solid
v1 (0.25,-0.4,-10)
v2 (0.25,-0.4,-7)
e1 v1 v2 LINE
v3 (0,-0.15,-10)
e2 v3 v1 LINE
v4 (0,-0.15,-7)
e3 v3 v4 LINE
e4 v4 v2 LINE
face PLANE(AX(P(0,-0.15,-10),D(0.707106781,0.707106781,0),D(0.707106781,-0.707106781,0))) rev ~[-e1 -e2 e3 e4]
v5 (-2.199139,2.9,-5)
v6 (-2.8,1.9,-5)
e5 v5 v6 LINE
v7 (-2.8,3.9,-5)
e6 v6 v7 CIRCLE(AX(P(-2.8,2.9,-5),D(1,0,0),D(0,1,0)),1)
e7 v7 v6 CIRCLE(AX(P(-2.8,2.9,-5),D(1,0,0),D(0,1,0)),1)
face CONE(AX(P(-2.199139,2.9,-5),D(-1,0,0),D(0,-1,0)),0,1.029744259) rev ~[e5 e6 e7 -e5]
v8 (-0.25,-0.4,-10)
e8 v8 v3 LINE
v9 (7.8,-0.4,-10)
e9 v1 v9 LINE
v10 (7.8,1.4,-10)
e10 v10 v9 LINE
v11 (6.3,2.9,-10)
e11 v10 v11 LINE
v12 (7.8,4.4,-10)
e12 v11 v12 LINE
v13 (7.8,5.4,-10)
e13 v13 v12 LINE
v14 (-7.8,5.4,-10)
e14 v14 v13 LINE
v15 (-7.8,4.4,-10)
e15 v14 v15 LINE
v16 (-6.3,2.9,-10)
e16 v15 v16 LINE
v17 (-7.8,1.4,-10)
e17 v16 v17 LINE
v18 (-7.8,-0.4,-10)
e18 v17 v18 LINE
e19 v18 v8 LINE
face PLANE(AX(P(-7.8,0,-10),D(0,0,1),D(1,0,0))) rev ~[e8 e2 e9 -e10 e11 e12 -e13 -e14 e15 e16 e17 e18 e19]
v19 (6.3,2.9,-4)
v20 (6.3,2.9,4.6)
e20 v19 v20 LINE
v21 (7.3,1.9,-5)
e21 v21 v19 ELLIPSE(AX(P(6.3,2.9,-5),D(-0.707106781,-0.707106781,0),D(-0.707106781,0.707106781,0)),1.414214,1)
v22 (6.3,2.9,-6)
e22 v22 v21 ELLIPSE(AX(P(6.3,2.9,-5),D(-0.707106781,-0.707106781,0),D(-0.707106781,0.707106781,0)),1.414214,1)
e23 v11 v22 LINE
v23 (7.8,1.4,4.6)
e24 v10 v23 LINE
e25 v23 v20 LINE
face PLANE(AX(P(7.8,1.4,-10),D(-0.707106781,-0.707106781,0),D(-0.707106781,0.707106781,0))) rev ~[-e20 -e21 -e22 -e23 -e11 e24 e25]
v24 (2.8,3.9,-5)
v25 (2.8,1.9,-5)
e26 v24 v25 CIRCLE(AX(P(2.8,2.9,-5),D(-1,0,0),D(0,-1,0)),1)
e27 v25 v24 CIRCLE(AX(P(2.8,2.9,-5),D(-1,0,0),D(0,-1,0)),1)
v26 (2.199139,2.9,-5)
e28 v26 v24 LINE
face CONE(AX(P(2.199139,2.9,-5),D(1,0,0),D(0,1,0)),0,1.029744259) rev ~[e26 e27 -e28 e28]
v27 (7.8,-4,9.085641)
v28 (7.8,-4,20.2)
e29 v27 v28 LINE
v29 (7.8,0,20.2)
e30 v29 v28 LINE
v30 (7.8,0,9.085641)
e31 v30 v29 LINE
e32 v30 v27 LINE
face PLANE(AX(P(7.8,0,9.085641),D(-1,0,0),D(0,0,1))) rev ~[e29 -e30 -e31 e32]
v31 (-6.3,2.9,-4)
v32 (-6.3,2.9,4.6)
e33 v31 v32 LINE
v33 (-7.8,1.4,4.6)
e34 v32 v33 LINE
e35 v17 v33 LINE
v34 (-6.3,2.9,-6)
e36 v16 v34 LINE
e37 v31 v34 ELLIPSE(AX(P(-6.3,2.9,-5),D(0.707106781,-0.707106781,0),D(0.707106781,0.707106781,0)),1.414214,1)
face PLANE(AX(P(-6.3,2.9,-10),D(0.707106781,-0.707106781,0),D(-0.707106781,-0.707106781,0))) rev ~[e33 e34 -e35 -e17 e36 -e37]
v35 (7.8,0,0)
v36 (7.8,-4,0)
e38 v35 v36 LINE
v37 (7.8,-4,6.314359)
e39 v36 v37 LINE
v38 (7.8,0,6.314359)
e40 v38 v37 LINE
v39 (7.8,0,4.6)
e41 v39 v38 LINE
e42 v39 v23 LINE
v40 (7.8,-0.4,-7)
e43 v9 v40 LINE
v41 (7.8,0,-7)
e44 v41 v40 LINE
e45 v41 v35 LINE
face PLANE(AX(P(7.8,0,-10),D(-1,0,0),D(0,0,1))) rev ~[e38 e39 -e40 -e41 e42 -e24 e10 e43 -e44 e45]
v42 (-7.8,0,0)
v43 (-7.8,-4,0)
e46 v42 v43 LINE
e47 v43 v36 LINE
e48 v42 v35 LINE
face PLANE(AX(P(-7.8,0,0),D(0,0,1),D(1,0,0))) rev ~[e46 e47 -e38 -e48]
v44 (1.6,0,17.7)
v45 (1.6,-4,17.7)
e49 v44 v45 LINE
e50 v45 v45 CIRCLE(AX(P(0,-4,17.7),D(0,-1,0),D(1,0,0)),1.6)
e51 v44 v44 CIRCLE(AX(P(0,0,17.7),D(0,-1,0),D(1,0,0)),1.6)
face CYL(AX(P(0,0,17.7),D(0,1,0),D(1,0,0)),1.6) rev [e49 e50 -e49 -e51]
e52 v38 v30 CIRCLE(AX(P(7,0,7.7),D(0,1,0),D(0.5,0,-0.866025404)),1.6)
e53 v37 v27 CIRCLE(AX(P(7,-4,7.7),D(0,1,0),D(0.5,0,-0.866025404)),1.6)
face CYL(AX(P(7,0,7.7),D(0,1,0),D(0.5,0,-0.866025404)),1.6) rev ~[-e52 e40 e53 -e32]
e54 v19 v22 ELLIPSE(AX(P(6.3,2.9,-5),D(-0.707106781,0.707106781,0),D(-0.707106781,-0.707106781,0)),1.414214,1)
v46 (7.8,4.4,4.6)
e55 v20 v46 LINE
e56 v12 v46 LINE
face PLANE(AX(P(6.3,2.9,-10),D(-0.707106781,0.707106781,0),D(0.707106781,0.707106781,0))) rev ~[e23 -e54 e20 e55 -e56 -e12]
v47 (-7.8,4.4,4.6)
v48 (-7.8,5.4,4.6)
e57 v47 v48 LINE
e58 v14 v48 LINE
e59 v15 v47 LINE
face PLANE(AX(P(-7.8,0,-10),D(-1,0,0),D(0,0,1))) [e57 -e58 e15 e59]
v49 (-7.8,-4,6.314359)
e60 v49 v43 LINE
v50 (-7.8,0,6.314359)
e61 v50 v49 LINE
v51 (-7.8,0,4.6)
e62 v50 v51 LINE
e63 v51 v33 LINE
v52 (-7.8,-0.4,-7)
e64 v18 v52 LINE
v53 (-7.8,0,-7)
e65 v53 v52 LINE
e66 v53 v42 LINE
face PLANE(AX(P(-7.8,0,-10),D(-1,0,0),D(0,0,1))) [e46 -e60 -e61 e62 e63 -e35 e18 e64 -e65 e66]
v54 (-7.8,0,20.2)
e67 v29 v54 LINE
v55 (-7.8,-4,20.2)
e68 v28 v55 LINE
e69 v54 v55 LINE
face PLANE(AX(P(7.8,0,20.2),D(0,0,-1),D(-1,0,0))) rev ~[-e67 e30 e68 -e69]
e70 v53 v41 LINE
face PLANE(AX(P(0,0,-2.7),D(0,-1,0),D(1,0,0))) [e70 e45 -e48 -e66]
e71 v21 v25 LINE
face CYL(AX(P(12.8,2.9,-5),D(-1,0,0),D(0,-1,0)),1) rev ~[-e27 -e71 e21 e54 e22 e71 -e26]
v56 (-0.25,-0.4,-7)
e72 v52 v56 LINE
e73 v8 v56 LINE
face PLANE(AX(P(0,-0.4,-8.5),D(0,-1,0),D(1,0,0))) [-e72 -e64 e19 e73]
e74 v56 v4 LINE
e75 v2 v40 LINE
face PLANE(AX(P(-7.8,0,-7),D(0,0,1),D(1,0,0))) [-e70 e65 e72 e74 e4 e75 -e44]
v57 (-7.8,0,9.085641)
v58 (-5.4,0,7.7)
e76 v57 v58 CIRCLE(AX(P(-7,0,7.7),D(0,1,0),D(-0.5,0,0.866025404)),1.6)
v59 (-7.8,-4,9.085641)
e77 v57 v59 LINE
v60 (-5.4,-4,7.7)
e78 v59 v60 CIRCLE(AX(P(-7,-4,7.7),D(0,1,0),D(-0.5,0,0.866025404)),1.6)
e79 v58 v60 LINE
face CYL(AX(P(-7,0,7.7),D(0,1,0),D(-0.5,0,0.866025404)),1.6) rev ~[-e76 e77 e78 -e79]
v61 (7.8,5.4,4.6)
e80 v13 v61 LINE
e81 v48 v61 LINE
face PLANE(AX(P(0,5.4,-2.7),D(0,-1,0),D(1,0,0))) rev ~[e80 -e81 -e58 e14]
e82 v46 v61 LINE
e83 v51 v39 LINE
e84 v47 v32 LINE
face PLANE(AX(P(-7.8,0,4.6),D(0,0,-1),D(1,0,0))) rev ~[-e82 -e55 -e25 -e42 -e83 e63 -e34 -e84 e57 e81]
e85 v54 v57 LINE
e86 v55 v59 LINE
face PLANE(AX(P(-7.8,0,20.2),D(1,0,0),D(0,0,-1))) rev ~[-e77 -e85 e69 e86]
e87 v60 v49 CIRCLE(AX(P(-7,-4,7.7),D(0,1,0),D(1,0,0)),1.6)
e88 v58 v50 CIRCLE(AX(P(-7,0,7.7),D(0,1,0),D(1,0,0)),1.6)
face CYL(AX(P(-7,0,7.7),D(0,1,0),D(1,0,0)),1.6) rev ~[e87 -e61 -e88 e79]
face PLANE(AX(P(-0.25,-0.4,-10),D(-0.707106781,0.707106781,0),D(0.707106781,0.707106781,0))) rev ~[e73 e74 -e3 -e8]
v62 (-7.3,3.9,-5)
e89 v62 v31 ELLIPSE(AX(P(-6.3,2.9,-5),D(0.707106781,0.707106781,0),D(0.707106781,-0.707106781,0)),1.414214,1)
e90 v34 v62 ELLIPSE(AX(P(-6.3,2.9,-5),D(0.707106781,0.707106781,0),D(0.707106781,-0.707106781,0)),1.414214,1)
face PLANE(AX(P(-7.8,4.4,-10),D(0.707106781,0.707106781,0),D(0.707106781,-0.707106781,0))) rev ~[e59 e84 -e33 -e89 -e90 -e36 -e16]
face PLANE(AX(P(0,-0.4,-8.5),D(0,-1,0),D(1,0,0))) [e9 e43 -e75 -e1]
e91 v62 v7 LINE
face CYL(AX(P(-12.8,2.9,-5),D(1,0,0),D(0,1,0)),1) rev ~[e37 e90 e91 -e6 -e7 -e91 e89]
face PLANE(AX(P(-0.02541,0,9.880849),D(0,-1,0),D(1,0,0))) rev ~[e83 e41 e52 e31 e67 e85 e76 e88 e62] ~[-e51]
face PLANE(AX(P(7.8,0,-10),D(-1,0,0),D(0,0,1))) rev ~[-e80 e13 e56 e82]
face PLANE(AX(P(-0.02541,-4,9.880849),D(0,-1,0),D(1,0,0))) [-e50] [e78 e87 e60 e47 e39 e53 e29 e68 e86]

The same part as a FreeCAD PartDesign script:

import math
import FreeCAD as App
import Part
import Sketcher

V = App.Vector


def add_polygon(sketch, points):
    """Adds a closed chain of lines whose ends are joined by coincident constraints."""
    first, n = sketch.GeometryCount, len(points)
    for a, b in zip(points, points[1:] + points[:1]):
        sketch.addGeometry(Part.LineSegment(App.Vector(*a, 0), App.Vector(*b, 0)), False)
    for i in range(n):
        sketch.addConstraint(Sketcher.Constraint("Coincident", first + i, 2, first + (i + 1) % n, 1))

doc = App.newDocument("Part")
body = doc.addObject("PartDesign::Body", "Body")

sketch1 = doc.addObject("Sketcher::SketchObject", "Sketch")
body.addObject(sketch1)
sketch1.AttachmentSupport = (doc.XZ_Plane, [""])
sketch1.MapMode = "FlatFace"
sketch1.addGeometry([
    Part.LineSegment(V(-7.8, 6.314359, 0), V(-7.8, 0, 0)),
    Part.LineSegment(V(-7.8, 0, 0), V(7.8, 0, 0)),
    Part.LineSegment(V(7.8, 0, 0), V(7.8, 6.314359, 0)),
    Part.ArcOfCircle(Part.Circle(V(7, 7.7, 0), V(0, 0, 1), 1.6), math.radians(60), math.radians(300)),
    Part.LineSegment(V(7.8, 9.085641, 0), V(7.8, 20.2, 0)),
    Part.LineSegment(V(7.8, 20.2, 0), V(-7.8, 20.2, 0)),
    Part.LineSegment(V(-7.8, 20.2, 0), V(-7.8, 9.085641, 0)),
    Part.ArcOfCircle(Part.Circle(V(-7, 7.7, 0), V(0, 0, 1), 1.6), math.radians(0), math.radians(120)),
    Part.ArcOfCircle(Part.Circle(V(-7, 7.7, 0), V(0, 0, 1), 1.6), math.radians(-120), math.radians(0)),
    Part.Circle(V(0, 17.7, 0), V(0, 0, 1), 1.6),
], False)
sketch1.addConstraint([
    Sketcher.Constraint("Coincident", 0, 2, 1, 1),
    Sketcher.Constraint("Coincident", 1, 2, 2, 1),
    Sketcher.Constraint("Coincident", 2, 2, 3, 2),
    Sketcher.Constraint("Coincident", 3, 1, 4, 1),
    Sketcher.Constraint("Coincident", 4, 2, 5, 1),
    Sketcher.Constraint("Coincident", 5, 2, 6, 1),
    Sketcher.Constraint("Coincident", 6, 2, 7, 2),
    Sketcher.Constraint("Tangent", 7, 1, 8, 2),
    Sketcher.Constraint("Coincident", 8, 1, 0, 1),
    Sketcher.Constraint("Vertical", 0),
    Sketcher.Constraint("Horizontal", 1),
    Sketcher.Constraint("Vertical", 2),
    Sketcher.Constraint("Vertical", 4),
    Sketcher.Constraint("Horizontal", 5),
    Sketcher.Constraint("Vertical", 6),
    Sketcher.Constraint("Equal", 3, 7),
    Sketcher.Constraint("Equal", 7, 8),
    Sketcher.Constraint("Equal", 8, 9),
    Sketcher.Constraint("Symmetric", 0, 2, 1, 2, -1, 1),
    Sketcher.Constraint("Symmetric", 3, 3, 7, 3, -2),
    Sketcher.Constraint("PointOnObject", 9, 3, -2),
    Sketcher.Constraint("Horizontal", 3, 1, 6, 2),
    Sketcher.Constraint("Horizontal", 8, 3, 7, 1),
    Sketcher.Constraint("Vertical", 2, 2, 3, 1),
    Sketcher.Constraint("Diameter", 9, 3.2),
    Sketcher.Constraint("DistanceX", 1, 1, 1, 2, 15.6),
    Sketcher.Constraint("DistanceX", -1, 1, 3, 3, 7.0),
    Sketcher.Constraint("DistanceY", 3, 3, 9, 3, 10.0),
    Sketcher.Constraint("DistanceY", -1, 1, 3, 3, 7.7),
    Sketcher.Constraint("DistanceY", -1, 1, 4, 2, 20.2),
])
pad1 = doc.addObject("PartDesign::Pad", "Pad")
body.addObject(pad1)
pad1.Profile = sketch1
pad1.Length = 4

sketch2 = doc.addObject("Sketcher::SketchObject", "Sketch001")
body.addObject(sketch2)
sketch2.AttachmentSupport = (doc.XZ_Plane, [""])
sketch2.MapMode = "FlatFace"
add_polygon(sketch2, [(-7.8, 4.6), (-7.8, -10), (7.8, -10), (7.8, 4.6)])
sketch2.addConstraint([
    Sketcher.Constraint("Vertical", 0),
    Sketcher.Constraint("Horizontal", 1),
    Sketcher.Constraint("Vertical", 2),
    Sketcher.Constraint("Horizontal", 3),
    Sketcher.Constraint("DistanceX", 1, 1, 1, 2, 15.6),
    Sketcher.Constraint("DistanceY", 0, 2, 0, 1, 14.6),
    Sketcher.Constraint("DistanceY", 0, 2, -1, 1, 10.0),
    Sketcher.Constraint("DistanceX", 0, 2, -1, 1, 7.8),
])
pad2 = doc.addObject("PartDesign::Pad", "Pad001")
body.addObject(pad2)
pad2.Profile = sketch2
pad2.Length = 5.4
pad2.Reversed = True

sketch3 = doc.addObject("Sketcher::SketchObject", "Sketch002")
body.addObject(sketch3)
sketch3.AttachmentSupport = (doc.XZ_Plane, [""])
sketch3.MapMode = "FlatFace"
add_polygon(sketch3, [(-7.8, -7), (-7.8, -10), (7.8, -10), (7.8, -7)])
sketch3.addConstraint([
    Sketcher.Constraint("Vertical", 0),
    Sketcher.Constraint("Horizontal", 1),
    Sketcher.Constraint("Vertical", 2),
    Sketcher.Constraint("Horizontal", 3),
    Sketcher.Constraint("DistanceY", 0, 2, 0, 1, 3.0),
    Sketcher.Constraint("DistanceX", 1, 1, 1, 2, 15.6),
    Sketcher.Constraint("DistanceY", 0, 2, -1, 1, 10.0),
    Sketcher.Constraint("DistanceX", 0, 2, -1, 1, 7.8),
])
pad3 = doc.addObject("PartDesign::Pad", "Pad002")
body.addObject(pad3)
pad3.Profile = sketch3
pad3.Length = 0.4

sketch4 = doc.addObject("Sketcher::SketchObject", "Sketch003")
body.addObject(sketch4)
sketch4.AttachmentSupport = (doc.YZ_Plane, [""])
sketch4.MapMode = "FlatFace"
sketch4.AttachmentOffset = App.Placement(V(0, 0, 7.8), App.Rotation())
sketch4.addGeometry(Part.Circle(V(2.9, -5, 0), V(0, 0, 1), 1), False)
sketch4.addConstraint([
    Sketcher.Constraint("Diameter", 0, 2.0),
    Sketcher.Constraint("DistanceY", 0, 3, -1, 1, 5.0),
    Sketcher.Constraint("DistanceX", -1, 1, 0, 3, 2.9),
])
doc.recompute()
hole = doc.addObject("PartDesign::Hole", "Hole")
body.addObject(hole)
hole.Profile = sketch4
hole.ThreadType = "None"
hole.Diameter = 2
hole.DepthType = "Dimension"
hole.Depth = 5
hole.DrillPoint = "Angled"
hole.DrillPointAngle = 118

sketch5 = doc.addObject("Sketcher::SketchObject", "Sketch004")
body.addObject(sketch5)
sketch5.AttachmentSupport = (doc.YZ_Plane, [""])
sketch5.MapMode = "FlatFace"
sketch5.AttachmentOffset = App.Placement(V(0, 0, -7.8), App.Rotation())
sketch5.addGeometry(Part.Circle(V(2.9, -5, 0), V(0, 0, 1), 1), False)
sketch5.addConstraint([
    Sketcher.Constraint("Diameter", 0, 2.0),
    Sketcher.Constraint("DistanceY", 0, 3, -1, 1, 5.0),
    Sketcher.Constraint("DistanceX", -1, 1, 0, 3, 2.9),
])
doc.recompute()
hole2 = doc.addObject("PartDesign::Hole", "Hole001")
body.addObject(hole2)
hole2.Profile = sketch5
hole2.ThreadType = "None"
hole2.Diameter = 2
hole2.DepthType = "Dimension"
hole2.Depth = 5
hole2.DrillPoint = "Angled"
hole2.DrillPointAngle = 118
hole2.Reversed = True

sketch6 = doc.addObject("Sketcher::SketchObject", "Sketch005")
body.addObject(sketch6)
sketch6.AttachmentSupport = (doc.XY_Plane, [""])
sketch6.MapMode = "FlatFace"
sketch6.AttachmentOffset = App.Placement(V(0, 0, -10), App.Rotation())
add_polygon(sketch6, [(-6.3, 2.9), (-7.8, 1.4), (-7.8, 4.4)])
add_polygon(sketch6, [(7.8, 4.4), (7.8, 1.4), (6.3, 2.9)])
sketch6.addConstraint([
    Sketcher.Constraint("Vertical", 1),
    Sketcher.Constraint("Vertical", 3),
    Sketcher.Constraint("Symmetric", 0, 2, 3, 2, -2),
    Sketcher.Constraint("Symmetric", 2, 2, 4, 2, -2),
    Sketcher.Constraint("Perpendicular", 0, 2),
    Sketcher.Constraint("Parallel", 2, 4),
    Sketcher.Constraint("Perpendicular", 4, 5),
    Sketcher.Constraint("DistanceY", 1, 1, 1, 2, 3.0),
    Sketcher.Constraint("DistanceX", 0, 2, -1, 1, 7.8),
    Sketcher.Constraint("DistanceY", -1, 1, 0, 2, 1.4),
])
pocket1 = doc.addObject("PartDesign::Pocket", "Pocket")
body.addObject(pocket1)
pocket1.Profile = sketch6
pocket1.Length = 25
pocket1.Reversed = True

sketch7 = doc.addObject("Sketcher::SketchObject", "Sketch006")
body.addObject(sketch7)
sketch7.AttachmentSupport = (doc.XY_Plane, [""])
sketch7.MapMode = "FlatFace"
sketch7.AttachmentOffset = App.Placement(V(0, 0, -10), App.Rotation())
add_polygon(sketch7, [(-0.25, -0.4), (0, -0.15), (0.25, -0.4)])
sketch7.addConstraint([
    Sketcher.Constraint("Horizontal", 2),
    Sketcher.Constraint("PointOnObject", 0, 2, -2),
    Sketcher.Constraint("Perpendicular", 0, 1),
    Sketcher.Constraint("Equal", 0, 1),
    Sketcher.Constraint("DistanceX", 2, 2, 2, 1, 0.5),
    Sketcher.Constraint("DistanceY", 1, 2, -1, 1, 0.4),
])
pocket2 = doc.addObject("PartDesign::Pocket", "Pocket001")
body.addObject(pocket2)
pocket2.Profile = sketch7
pocket2.Length = 3
pocket2.Reversed = True

doc.recompute()
